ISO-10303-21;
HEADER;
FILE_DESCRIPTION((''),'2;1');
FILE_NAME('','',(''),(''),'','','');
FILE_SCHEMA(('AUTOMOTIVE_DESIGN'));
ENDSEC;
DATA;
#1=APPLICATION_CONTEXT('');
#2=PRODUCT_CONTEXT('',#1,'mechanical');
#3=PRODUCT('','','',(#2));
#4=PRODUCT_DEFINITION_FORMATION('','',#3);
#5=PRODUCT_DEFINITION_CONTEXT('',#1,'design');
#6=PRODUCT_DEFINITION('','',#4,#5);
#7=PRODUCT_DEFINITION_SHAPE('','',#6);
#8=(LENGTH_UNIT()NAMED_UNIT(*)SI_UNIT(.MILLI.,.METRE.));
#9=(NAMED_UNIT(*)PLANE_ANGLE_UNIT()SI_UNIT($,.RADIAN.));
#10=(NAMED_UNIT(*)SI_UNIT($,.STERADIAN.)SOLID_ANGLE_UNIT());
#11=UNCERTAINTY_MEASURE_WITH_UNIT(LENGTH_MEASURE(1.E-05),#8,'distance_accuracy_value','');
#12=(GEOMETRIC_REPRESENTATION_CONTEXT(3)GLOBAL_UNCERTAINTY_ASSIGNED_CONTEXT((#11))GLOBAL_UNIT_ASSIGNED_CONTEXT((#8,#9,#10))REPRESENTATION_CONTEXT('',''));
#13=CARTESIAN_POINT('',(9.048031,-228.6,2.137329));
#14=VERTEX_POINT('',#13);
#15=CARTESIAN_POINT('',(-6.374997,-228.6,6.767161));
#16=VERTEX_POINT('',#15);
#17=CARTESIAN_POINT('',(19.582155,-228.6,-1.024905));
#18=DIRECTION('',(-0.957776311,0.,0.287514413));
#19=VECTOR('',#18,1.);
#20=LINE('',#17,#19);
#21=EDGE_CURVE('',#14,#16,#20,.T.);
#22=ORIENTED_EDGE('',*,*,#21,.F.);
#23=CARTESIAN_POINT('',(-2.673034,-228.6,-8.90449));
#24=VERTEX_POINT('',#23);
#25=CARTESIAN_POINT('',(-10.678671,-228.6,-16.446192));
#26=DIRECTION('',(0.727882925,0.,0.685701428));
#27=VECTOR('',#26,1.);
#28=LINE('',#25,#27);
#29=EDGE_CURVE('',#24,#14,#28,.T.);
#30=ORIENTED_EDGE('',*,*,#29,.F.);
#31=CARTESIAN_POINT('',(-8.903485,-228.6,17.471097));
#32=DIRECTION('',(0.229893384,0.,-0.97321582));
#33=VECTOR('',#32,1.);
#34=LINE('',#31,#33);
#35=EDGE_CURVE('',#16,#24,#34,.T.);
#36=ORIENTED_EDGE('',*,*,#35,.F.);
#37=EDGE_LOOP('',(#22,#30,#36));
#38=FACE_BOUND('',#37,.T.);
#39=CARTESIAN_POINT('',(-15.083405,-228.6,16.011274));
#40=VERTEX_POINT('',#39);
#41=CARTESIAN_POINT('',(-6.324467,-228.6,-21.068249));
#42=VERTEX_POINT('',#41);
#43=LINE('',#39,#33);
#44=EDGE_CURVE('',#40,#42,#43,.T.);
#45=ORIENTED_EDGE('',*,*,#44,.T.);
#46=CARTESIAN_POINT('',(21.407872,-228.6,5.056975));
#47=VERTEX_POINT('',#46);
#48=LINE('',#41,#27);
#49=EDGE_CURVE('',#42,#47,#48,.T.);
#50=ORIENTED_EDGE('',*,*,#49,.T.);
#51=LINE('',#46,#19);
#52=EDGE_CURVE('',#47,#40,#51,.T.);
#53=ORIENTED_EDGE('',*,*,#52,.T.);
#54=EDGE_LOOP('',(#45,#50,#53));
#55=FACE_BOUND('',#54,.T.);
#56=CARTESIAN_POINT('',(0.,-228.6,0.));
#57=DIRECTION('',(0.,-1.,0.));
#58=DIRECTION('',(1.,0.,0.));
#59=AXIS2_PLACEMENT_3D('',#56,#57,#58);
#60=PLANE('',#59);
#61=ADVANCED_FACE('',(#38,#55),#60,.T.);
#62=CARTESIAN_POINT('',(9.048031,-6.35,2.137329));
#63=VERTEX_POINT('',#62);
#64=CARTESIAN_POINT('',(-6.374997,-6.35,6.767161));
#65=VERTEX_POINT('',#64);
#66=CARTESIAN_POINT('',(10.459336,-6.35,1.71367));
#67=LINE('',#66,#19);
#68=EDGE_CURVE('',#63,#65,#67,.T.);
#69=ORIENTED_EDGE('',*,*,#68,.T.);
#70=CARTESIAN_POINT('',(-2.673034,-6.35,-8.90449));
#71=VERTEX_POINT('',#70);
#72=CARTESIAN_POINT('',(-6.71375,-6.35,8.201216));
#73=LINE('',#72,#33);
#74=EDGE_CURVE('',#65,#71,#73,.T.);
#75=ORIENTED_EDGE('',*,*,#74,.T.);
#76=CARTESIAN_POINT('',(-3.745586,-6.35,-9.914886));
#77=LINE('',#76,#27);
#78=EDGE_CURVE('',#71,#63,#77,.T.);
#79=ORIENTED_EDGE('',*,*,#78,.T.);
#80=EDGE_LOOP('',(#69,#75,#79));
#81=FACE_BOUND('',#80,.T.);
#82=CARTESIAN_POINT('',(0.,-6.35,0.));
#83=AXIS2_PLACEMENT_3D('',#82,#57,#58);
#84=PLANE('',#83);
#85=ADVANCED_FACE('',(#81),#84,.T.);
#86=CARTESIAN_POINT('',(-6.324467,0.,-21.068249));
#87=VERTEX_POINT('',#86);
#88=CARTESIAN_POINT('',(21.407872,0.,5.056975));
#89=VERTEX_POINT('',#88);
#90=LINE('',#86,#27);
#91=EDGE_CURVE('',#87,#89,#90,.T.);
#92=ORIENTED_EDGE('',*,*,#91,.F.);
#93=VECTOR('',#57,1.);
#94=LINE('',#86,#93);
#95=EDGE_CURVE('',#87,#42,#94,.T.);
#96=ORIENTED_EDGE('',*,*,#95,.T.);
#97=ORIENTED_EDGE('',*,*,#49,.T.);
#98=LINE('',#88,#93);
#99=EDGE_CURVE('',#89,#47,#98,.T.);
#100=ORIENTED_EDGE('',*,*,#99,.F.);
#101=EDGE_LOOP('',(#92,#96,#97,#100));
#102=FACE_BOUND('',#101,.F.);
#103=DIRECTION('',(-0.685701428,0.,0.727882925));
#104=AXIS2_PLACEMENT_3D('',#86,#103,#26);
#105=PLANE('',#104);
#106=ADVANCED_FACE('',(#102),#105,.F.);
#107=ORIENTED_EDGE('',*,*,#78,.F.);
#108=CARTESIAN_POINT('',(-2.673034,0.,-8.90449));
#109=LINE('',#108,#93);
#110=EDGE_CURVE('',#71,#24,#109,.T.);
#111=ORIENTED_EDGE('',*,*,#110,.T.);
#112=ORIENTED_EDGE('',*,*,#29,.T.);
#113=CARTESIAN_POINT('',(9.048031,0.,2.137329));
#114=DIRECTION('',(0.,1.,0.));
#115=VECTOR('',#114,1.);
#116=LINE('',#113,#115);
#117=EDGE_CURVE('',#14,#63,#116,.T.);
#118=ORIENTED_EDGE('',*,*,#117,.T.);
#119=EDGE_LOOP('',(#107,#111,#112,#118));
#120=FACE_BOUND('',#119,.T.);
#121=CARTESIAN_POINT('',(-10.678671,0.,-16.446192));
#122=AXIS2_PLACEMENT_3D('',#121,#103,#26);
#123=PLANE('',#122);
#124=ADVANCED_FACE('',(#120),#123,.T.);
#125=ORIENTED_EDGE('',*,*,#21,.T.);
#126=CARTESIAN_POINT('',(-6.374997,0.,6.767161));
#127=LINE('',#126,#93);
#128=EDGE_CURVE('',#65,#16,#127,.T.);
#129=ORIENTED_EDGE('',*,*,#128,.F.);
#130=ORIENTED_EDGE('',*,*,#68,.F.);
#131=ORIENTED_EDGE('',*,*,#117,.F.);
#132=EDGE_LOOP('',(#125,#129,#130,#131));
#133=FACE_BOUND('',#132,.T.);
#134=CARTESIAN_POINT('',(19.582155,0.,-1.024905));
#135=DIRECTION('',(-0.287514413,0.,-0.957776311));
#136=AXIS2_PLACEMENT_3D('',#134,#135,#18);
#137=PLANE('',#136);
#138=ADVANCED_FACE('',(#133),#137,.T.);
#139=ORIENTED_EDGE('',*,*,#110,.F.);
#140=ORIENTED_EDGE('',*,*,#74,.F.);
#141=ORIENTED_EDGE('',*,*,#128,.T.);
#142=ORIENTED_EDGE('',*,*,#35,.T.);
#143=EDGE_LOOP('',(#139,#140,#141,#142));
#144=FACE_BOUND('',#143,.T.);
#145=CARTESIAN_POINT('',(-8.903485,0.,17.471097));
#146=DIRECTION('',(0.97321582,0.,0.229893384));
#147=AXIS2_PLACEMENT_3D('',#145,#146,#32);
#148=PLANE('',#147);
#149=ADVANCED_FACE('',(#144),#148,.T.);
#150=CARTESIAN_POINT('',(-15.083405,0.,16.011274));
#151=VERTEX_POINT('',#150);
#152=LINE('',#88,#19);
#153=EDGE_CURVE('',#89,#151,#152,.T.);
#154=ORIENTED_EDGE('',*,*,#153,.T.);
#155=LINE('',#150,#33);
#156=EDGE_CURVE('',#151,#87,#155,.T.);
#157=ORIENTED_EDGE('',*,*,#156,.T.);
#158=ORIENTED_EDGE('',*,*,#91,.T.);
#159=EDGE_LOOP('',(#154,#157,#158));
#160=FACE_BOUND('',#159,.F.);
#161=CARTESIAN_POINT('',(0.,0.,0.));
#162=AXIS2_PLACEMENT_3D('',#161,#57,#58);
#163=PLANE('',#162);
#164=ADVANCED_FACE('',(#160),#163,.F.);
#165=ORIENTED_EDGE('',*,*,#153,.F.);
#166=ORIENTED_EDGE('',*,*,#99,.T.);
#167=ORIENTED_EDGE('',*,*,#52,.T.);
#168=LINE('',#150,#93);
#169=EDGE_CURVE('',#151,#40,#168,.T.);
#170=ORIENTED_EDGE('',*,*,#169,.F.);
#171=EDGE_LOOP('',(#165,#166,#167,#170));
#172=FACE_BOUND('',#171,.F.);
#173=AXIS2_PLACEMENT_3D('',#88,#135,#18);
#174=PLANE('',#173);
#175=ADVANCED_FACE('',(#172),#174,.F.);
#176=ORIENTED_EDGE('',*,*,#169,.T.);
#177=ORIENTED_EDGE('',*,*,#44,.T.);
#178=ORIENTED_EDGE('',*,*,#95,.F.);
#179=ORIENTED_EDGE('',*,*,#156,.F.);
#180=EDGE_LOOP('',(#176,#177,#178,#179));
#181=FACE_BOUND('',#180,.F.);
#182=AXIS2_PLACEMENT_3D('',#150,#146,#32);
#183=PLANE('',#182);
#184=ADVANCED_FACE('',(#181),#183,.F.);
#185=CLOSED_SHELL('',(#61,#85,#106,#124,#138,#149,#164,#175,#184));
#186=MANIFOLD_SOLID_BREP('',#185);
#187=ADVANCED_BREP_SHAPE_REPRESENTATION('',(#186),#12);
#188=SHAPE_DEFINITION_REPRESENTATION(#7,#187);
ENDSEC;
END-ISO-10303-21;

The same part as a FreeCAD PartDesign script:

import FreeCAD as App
import Part
import Sketcher

V = App.Vector
Q = App.Units.Quantity


def faces_at(feature, points):
    """Names of the faces that lie closest to the given points."""
    faces = feature.Shape.Faces
    near = lambda p: min(range(len(faces)), key=lambda i: faces[i].distToShape(Part.Vertex(*p))[0])
    return sorted({f"Face{near(p) + 1}" for p in points})

doc = App.newDocument("Part")
params = doc.addObject("Spreadsheet::Sheet", "Params")
for row, (alias, value) in enumerate([
    ("sketch1_length", "1.5 in"),
    ("pad1_length", "9 in"),
    ("thickness_wall", "0.25 in"),
], start=1):
    params.set(f"A{row}", alias)
    params.set(f"B{row}", "=" + value)
    params.setAlias(f"B{row}", alias)

body = doc.addObject("PartDesign::Body", "Body")

# Sketch on XZ plane
sketch1 = body.newObject("Sketcher::SketchObject", "Sketch")
sketch1.AttachmentSupport = (doc.getObject("XZ_Plane"), [""])
sketch1.MapMode = "FlatFace"
sketch1.addGeometry(Part.LineSegment(V(21, 5, 0), V(-15, 16, 0)), False)
sketch1.addGeometry(Part.LineSegment(V(-15, 16, 0), V(-6, -21, 0)), False)
sketch1.addGeometry(Part.LineSegment(V(-6, -21, 0), V(21, 5, 0)), False)
sketch1.addConstraint(Sketcher.Constraint("Coincident", 0, 2, 1, 1))
sketch1.addConstraint(Sketcher.Constraint("Coincident", 1, 2, 2, 1))
sketch1.addConstraint(Sketcher.Constraint("Coincident", 2, 2, 0, 1))
sketch1.addConstraint(Sketcher.Constraint("Equal", 0, 1))
sketch1.addConstraint(Sketcher.Constraint("Equal", 1, 2))
sketch1.addConstraint(Sketcher.Constraint("Distance", 0, Q("1.5 in")))
sketch1.addConstraint(Sketcher.Constraint("DistanceY", 2, 2, 0, 2, 10.954299))
sketch1.addConstraint(Sketcher.Constraint("DistanceY", 1, 2, -1, 1, 21.068249))
sketch1.addConstraint(Sketcher.Constraint("DistanceX", 0, 2, -1, 1, 15.083405))
sketch1.setExpression("Constraints[5]", "Params.sketch1_length")
pad1 = body.newObject("PartDesign::Pad", "Pad")
pad1.Profile = sketch1
pad1.setExpression("Length", "Params.pad1_length")
doc.recompute()

thickness = body.newObject("PartDesign::Thickness", "Thickness")
thickness.Base = (pad1, faces_at(pad1, [(3.162, -228.6, -2.528)]))
thickness.setExpression("Value", "Params.thickness_wall")
thickness.Reversed = True
thickness.Join = "Arc"

doc.recompute()
